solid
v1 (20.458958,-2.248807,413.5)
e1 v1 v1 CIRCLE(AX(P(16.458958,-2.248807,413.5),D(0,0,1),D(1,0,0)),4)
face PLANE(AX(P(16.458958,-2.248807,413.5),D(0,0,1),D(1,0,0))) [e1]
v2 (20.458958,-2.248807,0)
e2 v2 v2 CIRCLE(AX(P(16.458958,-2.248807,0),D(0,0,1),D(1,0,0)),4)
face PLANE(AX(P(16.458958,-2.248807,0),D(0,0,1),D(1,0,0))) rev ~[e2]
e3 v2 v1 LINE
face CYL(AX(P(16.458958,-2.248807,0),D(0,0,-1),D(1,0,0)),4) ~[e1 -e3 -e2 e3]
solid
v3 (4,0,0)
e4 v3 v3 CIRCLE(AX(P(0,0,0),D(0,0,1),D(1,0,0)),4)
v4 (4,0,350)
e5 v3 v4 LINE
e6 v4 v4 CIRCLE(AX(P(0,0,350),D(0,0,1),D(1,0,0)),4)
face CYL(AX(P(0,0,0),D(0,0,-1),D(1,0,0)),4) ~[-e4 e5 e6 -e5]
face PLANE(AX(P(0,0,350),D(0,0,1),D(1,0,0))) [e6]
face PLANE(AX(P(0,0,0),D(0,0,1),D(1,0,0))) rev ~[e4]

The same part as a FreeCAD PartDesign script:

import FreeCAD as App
import Part
import Sketcher
from FreeCAD import Vector

doc = App.newDocument("Part")
body = doc.addObject("PartDesign::Body", "Body")

sketch1 = body.newObject("Sketcher::SketchObject", "Sketch")
sketch1.AttachmentSupport = (doc.getObject("XY_Plane"), [""])
sketch1.MapMode = "FlatFace"
sketch1.addGeometry(Part.Circle(Vector(0, 0, 0), Vector(0, 0, 1), 4), False)
sketch1.addConstraint([
    Sketcher.Constraint("Coincident", 0, 3, -1, 1),
    Sketcher.Constraint("Diameter", 0, 8.0),
])
pad1 = body.newObject("PartDesign::Pad", "Pad")
pad1.Profile = sketch1
pad1.Length = 350
body2 = doc.addObject("PartDesign::Body", "Body001")

sketch2 = body2.newObject("Sketcher::SketchObject", "Sketch001")
sketch2.AttachmentSupport = (doc.getObject("XY_Plane001"), [""])
sketch2.MapMode = "FlatFace"
sketch2.addGeometry(Part.Circle(Vector(16.5, -2.2, 0), Vector(0, 0, 1), 4), False)
sketch2.addConstraint([
    Sketcher.Constraint("Diameter", 0, 8.0),
    Sketcher.Constraint("DistanceX", -1, 1, 0, 3, 16.458958),
    Sketcher.Constraint("DistanceY", 0, 3, -1, 1, 2.248807),
])
pad2 = body2.newObject("PartDesign::Pad", "Pad001")
pad2.Profile = sketch2
pad2.Length = 413.5

doc.recompute()
